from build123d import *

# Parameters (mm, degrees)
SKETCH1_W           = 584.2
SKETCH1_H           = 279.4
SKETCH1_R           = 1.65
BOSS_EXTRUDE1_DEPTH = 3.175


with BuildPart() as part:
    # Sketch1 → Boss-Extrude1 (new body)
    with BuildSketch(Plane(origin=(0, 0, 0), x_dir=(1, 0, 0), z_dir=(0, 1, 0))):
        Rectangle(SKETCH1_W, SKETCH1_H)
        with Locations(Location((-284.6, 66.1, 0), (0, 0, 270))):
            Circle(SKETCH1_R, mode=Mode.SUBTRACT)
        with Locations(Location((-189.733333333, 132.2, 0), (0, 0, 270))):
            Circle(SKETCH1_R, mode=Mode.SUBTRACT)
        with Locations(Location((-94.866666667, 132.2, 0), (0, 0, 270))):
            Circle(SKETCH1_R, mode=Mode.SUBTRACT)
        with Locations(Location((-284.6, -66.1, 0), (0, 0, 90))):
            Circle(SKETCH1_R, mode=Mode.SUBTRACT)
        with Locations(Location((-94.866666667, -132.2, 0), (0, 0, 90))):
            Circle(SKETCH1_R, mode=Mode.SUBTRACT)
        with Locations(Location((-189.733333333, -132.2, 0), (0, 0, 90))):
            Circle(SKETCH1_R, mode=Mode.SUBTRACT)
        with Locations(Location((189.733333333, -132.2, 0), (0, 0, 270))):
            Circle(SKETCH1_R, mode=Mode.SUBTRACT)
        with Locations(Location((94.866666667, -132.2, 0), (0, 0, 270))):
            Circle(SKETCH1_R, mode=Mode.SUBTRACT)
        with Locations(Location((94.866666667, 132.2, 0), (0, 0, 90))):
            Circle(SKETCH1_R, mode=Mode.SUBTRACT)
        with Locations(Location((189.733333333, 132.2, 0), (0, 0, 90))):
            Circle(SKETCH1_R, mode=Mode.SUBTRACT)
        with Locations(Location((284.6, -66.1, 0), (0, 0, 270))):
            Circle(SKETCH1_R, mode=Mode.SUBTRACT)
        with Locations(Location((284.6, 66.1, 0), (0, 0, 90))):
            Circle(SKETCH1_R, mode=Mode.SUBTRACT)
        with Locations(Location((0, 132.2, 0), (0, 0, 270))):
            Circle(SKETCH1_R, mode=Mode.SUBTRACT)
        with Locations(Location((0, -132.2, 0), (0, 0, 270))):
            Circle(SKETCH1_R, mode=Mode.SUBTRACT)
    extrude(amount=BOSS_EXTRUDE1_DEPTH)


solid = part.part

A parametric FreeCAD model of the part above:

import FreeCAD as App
import Part
import Sketcher

V = App.Vector
Q = App.Units.Quantity

doc = App.newDocument("Part")
body = doc.addObject("PartDesign::Body", "Body")

# Sketch on XZ plane
sketch1 = body.newObject("Sketcher::SketchObject", "Sketch")
sketch1.AttachmentSupport = (doc.getObject("XZ_Plane"), [""])
sketch1.MapMode = "FlatFace"
sketch1.addGeometry(Part.LineSegment(V(-292.1, -139.7, 0), V(-292.1, 139.7, 0)), False)
sketch1.addGeometry(Part.LineSegment(V(-292.1, 139.7, 0), V(292.1, 139.7, 0)), False)
sketch1.addGeometry(Part.LineSegment(V(292.1, 139.7, 0), V(292.1, -139.7, 0)), False)
sketch1.addGeometry(Part.LineSegment(V(292.1, -139.7, 0), V(-292.1, -139.7, 0)), False)
sketch1.addGeometry(Part.Circle(V(-189.733333, 132.2, 0), V(0, 0, 1), 1.65), False)
sketch1.addGeometry(Part.Circle(V(-94.866667, 132.2, 0), V(0, 0, 1), 1.65), False)
sketch1.addGeometry(Part.Circle(V(-284.6, 66.1, 0), V(0, 0, 1), 1.65), False)
sketch1.addGeometry(Part.Circle(V(0, 132.2, 0), V(0, 0, 1), 1.65), False)
sketch1.addGeometry(Part.Circle(V(94.866667, 132.2, 0), V(0, 0, 1), 1.65), False)
sketch1.addGeometry(Part.Circle(V(189.733333, 132.2, 0), V(0, 0, 1), 1.65), False)
sketch1.addGeometry(Part.Circle(V(284.6, 66.1, 0), V(0, 0, 1), 1.65), False)
sketch1.addGeometry(Part.Circle(V(-284.6, -66.1, 0), V(0, 0, 1), 1.65), False)
sketch1.addGeometry(Part.Circle(V(-189.733333, -132.2, 0), V(0, 0, 1), 1.65), False)
sketch1.addGeometry(Part.Circle(V(-94.866667, -132.2, 0), V(0, 0, 1), 1.65), False)
sketch1.addGeometry(Part.Circle(V(284.6, -66.1, 0), V(0, 0, 1), 1.65), False)
sketch1.addGeometry(Part.Circle(V(0, -132.2, 0), V(0, 0, 1), 1.65), False)
sketch1.addGeometry(Part.Circle(V(94.866667, -132.2, 0), V(0, 0, 1), 1.65), False)
sketch1.addGeometry(Part.Circle(V(189.733333, -132.2, 0), V(0, 0, 1), 1.65), False)
sketch1.addConstraint(Sketcher.Constraint("Coincident", 0, 2, 1, 1))
sketch1.addConstraint(Sketcher.Constraint("Coincident", 1, 2, 2, 1))
sketch1.addConstraint(Sketcher.Constraint("Coincident", 2, 2, 3, 1))
sketch1.addConstraint(Sketcher.Constraint("Coincident", 3, 2, 0, 1))
sketch1.addConstraint(Sketcher.Constraint("Vertical", 0))
sketch1.addConstraint(Sketcher.Constraint("Horizontal", 1))
sketch1.addConstraint(Sketcher.Constraint("Vertical", 2))
sketch1.addConstraint(Sketcher.Constraint("Horizontal", 3))
sketch1.addConstraint(Sketcher.Constraint("Equal", 4, 5))
sketch1.addConstraint(Sketcher.Constraint("Equal", 5, 6))
sketch1.addConstraint(Sketcher.Constraint("Equal", 6, 7))
sketch1.addConstraint(Sketcher.Constraint("Equal", 7, 8))
sketch1.addConstraint(Sketcher.Constraint("Equal", 8, 9))
sketch1.addConstraint(Sketcher.Constraint("Equal", 9, 10))
sketch1.addConstraint(Sketcher.Constraint("Equal", 10, 11))
sketch1.addConstraint(Sketcher.Constraint("Equal", 11, 12))
sketch1.addConstraint(Sketcher.Constraint("Equal", 12, 13))
sketch1.addConstraint(Sketcher.Constraint("Equal", 13, 14))
sketch1.addConstraint(Sketcher.Constraint("Equal", 14, 15))
sketch1.addConstraint(Sketcher.Constraint("Equal", 15, 16))
sketch1.addConstraint(Sketcher.Constraint("Equal", 16, 17))
sketch1.addConstraint(Sketcher.Constraint("Symmetric", 10, 3, 11, 3, -1, 1))
sketch1.addConstraint(Sketcher.Constraint("Symmetric", 9, 3, 12, 3, -1, 1))
sketch1.addConstraint(Sketcher.Constraint("Symmetric", 8, 3, 13, 3, -1, 1))
sketch1.addConstraint(Sketcher.Constraint("Symmetric", 6, 3, 14, 3, -1, 1))
sketch1.addConstraint(Sketcher.Constraint("Symmetric", 7, 3, 15, 3, -1, 1))
sketch1.addConstraint(Sketcher.Constraint("Symmetric", 5, 3, 16, 3, -1, 1))
sketch1.addConstraint(Sketcher.Constraint("Symmetric", 4, 3, 17, 3, -1, 1))
sketch1.addConstraint(Sketcher.Constraint("Symmetric", 0, 2, 2, 2, -1, 1))
sketch1.addConstraint(Sketcher.Constraint("Symmetric", 5, 3, 8, 3, -2))
sketch1.addConstraint(Sketcher.Constraint("Symmetric", 4, 3, 9, 3, -2))
sketch1.addConstraint(Sketcher.Constraint("Symmetric", 6, 3, 10, 3, -2))
sketch1.addConstraint(Sketcher.Constraint("PointOnObject", 7, 3, -2))
sketch1.addConstraint(Sketcher.Constraint("Horizontal", 4, 3, 5, 3))
sketch1.addConstraint(Sketcher.Constraint("Horizontal", 5, 3, 7, 3))
sketch1.addConstraint(Sketcher.Constraint("DistanceX", 1, 1, 1, 2, Q("23 in")))
sketch1.addConstraint(Sketcher.Constraint("DistanceY", 0, 1, 0, 2, Q("11 in")))
sketch1.addConstraint(Sketcher.Constraint("Diameter", 4, 3.3))
sketch1.addConstraint(Sketcher.Constraint("DistanceY", -1, 1, 4, 3, 132.2))
sketch1.addConstraint(Sketcher.Constraint("DistanceX", 6, 3, -1, 1, 284.6))
sketch1.addConstraint(Sketcher.Constraint("DistanceY", -1, 1, 6, 3, 66.1))
sketch1.addConstraint(Sketcher.Constraint("DistanceX", 4, 3, 8, 3, 284.6))
sketch1.addConstraint(Sketcher.Constraint("DistanceX", 4, 3, -1, 1, 189.733333))
pad1 = body.newObject("PartDesign::Pad", "Pad")
pad1.Profile = sketch1
pad1.Length = Q("0.125 in")
pad1.Reversed = True

doc.recompute()
